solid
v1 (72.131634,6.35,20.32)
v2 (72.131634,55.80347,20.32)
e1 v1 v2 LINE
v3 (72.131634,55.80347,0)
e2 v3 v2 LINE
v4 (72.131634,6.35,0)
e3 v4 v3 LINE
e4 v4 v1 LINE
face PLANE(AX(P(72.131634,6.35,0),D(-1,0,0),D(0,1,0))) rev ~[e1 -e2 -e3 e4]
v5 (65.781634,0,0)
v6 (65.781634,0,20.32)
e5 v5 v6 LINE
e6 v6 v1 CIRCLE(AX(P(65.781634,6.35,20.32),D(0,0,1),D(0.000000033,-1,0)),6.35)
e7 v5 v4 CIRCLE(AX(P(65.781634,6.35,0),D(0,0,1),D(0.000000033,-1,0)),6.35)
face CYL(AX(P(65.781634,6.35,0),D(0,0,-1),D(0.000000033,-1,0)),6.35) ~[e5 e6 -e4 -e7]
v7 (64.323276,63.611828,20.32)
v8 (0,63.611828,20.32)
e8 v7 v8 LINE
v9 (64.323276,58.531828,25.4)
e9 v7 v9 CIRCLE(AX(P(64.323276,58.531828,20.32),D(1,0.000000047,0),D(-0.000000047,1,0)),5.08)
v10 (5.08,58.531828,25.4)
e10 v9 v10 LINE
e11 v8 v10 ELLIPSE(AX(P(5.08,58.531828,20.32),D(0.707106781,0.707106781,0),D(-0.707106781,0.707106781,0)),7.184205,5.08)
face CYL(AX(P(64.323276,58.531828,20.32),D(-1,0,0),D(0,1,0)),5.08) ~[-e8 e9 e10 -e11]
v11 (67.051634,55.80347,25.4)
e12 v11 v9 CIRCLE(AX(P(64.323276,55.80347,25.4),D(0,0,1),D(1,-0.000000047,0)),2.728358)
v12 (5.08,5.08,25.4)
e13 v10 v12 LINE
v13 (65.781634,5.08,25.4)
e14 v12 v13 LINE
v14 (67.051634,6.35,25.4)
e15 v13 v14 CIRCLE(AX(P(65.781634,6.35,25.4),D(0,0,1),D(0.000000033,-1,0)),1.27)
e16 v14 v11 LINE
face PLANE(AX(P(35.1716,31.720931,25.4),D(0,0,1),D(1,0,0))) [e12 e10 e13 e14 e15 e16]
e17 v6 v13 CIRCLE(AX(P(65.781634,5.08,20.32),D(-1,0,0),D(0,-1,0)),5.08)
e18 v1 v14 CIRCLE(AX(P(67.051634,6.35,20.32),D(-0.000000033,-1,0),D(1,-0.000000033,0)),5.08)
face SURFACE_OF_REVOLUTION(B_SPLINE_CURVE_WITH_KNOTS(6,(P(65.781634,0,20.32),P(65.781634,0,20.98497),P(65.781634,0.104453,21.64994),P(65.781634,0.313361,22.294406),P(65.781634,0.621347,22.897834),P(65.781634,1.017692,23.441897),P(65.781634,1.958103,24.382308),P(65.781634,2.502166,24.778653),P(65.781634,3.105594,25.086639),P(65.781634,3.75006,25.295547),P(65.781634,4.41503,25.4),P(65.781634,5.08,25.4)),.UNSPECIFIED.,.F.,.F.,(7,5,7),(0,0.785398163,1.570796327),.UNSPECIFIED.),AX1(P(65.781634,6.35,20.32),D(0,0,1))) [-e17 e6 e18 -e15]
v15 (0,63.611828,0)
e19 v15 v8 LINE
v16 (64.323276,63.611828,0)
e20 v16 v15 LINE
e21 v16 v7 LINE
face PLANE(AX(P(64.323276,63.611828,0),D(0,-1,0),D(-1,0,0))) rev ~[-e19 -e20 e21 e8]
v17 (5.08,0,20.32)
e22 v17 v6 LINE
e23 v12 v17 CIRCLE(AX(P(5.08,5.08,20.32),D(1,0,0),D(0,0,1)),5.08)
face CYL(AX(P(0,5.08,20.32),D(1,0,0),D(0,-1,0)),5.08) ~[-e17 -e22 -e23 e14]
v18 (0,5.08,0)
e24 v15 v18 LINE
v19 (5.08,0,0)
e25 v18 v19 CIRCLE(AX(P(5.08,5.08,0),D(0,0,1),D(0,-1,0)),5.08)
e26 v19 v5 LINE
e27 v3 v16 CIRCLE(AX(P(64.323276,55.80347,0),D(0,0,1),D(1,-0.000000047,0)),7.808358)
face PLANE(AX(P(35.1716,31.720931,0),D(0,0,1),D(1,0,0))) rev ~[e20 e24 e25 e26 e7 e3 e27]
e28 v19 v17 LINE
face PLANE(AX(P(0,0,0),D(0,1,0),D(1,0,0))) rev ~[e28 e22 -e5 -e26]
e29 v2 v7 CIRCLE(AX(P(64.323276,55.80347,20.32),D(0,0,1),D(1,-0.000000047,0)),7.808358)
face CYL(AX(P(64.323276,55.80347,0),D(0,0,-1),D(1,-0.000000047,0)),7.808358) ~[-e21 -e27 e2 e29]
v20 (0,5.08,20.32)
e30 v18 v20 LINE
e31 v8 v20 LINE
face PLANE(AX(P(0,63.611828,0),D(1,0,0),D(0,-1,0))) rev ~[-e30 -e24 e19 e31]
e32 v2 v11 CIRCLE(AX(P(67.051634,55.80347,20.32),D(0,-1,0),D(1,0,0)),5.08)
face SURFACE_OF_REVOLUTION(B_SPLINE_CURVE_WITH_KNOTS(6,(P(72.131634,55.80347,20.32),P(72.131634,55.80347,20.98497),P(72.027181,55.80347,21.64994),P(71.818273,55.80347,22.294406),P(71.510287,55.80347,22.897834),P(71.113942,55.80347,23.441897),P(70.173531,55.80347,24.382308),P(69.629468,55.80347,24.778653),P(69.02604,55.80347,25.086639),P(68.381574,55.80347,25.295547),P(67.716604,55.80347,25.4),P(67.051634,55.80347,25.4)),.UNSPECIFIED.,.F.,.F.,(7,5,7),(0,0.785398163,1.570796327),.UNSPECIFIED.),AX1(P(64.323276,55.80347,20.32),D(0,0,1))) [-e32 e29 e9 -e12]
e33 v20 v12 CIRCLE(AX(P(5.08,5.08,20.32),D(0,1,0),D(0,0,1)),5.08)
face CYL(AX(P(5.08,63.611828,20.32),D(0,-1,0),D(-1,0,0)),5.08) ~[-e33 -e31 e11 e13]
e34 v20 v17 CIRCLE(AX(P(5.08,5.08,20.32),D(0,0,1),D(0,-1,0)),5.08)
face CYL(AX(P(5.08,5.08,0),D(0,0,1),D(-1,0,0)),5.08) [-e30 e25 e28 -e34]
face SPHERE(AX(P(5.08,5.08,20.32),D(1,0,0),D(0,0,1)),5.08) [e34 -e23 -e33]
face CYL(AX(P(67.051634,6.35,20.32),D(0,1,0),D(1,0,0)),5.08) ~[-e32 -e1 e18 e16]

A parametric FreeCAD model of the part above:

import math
import FreeCAD as App
import Part
import Sketcher

V = App.Vector
Q = App.Units.Quantity


def edges_at(feature, points):
    """Names of the edges that pass closest to the given points."""
    edges = feature.Shape.Edges
    near = lambda p: min(range(len(edges)), key=lambda i: edges[i].distToShape(Part.Vertex(*p))[0])
    return sorted({f"Edge{near(p) + 1}" for p in points})

doc = App.newDocument("Part")
body = doc.addObject("PartDesign::Body", "Body")

sketch1 = body.newObject("Sketcher::SketchObject", "Sketch")
sketch1.AttachmentSupport = (doc.getObject("XY_Plane"), [""])
sketch1.MapMode = "FlatFace"
sketch1.addGeometry(Part.LineSegment(V(0, 63.611828, 0), V(0, 0, 0)), False)
sketch1.addGeometry(Part.LineSegment(V(0, 0, 0), V(65.781634, 0, 0)), False)
sketch1.addGeometry(Part.ArcOfCircle(Part.Circle(V(65.781634, 6.35, 0), V(0, 0, 1), 6.35), math.radians(-89.999998), math.radians(-0.000002)), False)
sketch1.addGeometry(Part.LineSegment(V(72.131634, 6.35, 0), V(72.131634, 55.80347, 0)), False)
sketch1.addGeometry(Part.ArcOfCircle(Part.Circle(V(64.323276, 55.80347, 0), V(0, 0, 1), 7.808358), math.radians(-0.000003), math.radians(90.000003)), False)
sketch1.addGeometry(Part.LineSegment(V(64.323276, 63.611828, 0), V(0, 63.611828, 0)), False)
sketch1.addConstraint(Sketcher.Constraint("Coincident", 0, 2, 1, 1))
sketch1.addConstraint(Sketcher.Constraint("Tangent", 1, 2, 2, 1))
sketch1.addConstraint(Sketcher.Constraint("Tangent", 2, 2, 3, 1))
sketch1.addConstraint(Sketcher.Constraint("Tangent", 3, 2, 4, 1))
sketch1.addConstraint(Sketcher.Constraint("Tangent", 4, 2, 5, 1))
sketch1.addConstraint(Sketcher.Constraint("Coincident", 5, 2, 0, 1))
sketch1.addConstraint(Sketcher.Constraint("Vertical", 0))
sketch1.addConstraint(Sketcher.Constraint("Horizontal", 1))
sketch1.addConstraint(Sketcher.Constraint("Vertical", 3))
sketch1.addConstraint(Sketcher.Constraint("Horizontal", 5))
sketch1.addConstraint(Sketcher.Constraint("Coincident", 0, 2, -1, 1))
sketch1.addConstraint(Sketcher.Constraint("Radius", 2, Q("0.25 in")))
sketch1.addConstraint(Sketcher.Constraint("Radius", 4, 7.808358))
sketch1.addConstraint(Sketcher.Constraint("DistanceY", 0, 2, 0, 1, 63.611828))
sketch1.addConstraint(Sketcher.Constraint("DistanceX", 1, 1, 1, 2, 65.781634))
pad1 = body.newObject("PartDesign::Pad", "Pad")
pad1.Profile = sketch1
pad1.Length = Q("1 in")
doc.recompute()

fillet = body.newObject("PartDesign::Fillet", "Fillet")
fillet.Base = (pad1, edges_at(pad1, [(32.891, 0, 25.4), (0, 31.806, 25.4), (0, 0, 12.7)]))
fillet.Radius = Q("0.2 in")

doc.recompute()
